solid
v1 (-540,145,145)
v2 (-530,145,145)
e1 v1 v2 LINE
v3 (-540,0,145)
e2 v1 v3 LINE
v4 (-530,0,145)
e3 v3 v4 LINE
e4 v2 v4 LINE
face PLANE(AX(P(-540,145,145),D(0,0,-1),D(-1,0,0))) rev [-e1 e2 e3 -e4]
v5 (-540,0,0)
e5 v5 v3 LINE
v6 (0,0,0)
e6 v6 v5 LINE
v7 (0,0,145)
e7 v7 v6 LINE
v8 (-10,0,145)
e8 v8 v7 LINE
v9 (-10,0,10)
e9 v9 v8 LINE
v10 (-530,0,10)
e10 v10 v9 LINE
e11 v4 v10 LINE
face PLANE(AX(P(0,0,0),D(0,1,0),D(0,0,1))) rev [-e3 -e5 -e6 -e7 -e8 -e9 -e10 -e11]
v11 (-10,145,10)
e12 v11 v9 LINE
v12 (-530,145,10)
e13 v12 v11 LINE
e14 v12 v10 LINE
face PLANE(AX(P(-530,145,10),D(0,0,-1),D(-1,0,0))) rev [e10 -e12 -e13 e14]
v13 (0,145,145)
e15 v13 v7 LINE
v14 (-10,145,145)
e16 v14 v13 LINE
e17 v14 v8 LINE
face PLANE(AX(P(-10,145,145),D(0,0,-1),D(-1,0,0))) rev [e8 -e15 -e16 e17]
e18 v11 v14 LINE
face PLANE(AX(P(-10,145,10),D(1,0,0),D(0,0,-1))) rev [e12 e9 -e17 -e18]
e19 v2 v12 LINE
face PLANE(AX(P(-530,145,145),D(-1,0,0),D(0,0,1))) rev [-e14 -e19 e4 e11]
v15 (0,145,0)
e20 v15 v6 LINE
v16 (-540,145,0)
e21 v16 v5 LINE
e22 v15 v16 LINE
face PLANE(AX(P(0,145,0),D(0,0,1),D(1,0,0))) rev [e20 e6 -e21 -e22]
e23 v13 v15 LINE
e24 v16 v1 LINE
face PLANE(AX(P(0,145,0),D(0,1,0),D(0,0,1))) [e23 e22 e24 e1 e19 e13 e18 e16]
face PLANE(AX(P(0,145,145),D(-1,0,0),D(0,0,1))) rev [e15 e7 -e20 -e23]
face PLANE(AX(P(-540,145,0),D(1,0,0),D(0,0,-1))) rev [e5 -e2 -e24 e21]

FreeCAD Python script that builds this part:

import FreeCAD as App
import Part
import Sketcher

doc = App.newDocument("Part")
body = doc.addObject("PartDesign::Body", "Body")

# Sketch on XZ plane
sketch1 = body.newObject("Sketcher::SketchObject", "Sketch")
sketch1.AttachmentSupport = (doc.getObject("XZ_Plane"), [""])
sketch1.MapMode = "FlatFace"
sketch1.addGeometry([
    Part.LineSegment(App.Vector(0, 0, 0), App.Vector(-540, 0, 0)),  # 0
    Part.LineSegment(App.Vector(-540, 0, 0), App.Vector(-540, 145, 0)),  # 1
    Part.LineSegment(App.Vector(-540, 145, 0), App.Vector(-530, 145, 0)),  # 2
    Part.LineSegment(App.Vector(-530, 145, 0), App.Vector(-530, 10, 0)),  # 3
    Part.LineSegment(App.Vector(-530, 10, 0), App.Vector(-10, 10, 0)),  # 4
    Part.LineSegment(App.Vector(-10, 10, 0), App.Vector(-10, 145, 0)),  # 5
    Part.LineSegment(App.Vector(-10, 145, 0), App.Vector(0, 145, 0)),  # 6
    Part.LineSegment(App.Vector(0, 145, 0), App.Vector(0, 0, 0)),  # 7
], False)
sketch1.addConstraint([
    Sketcher.Constraint("Coincident", 0, 2, 1, 1),
    Sketcher.Constraint("Coincident", 1, 2, 2, 1),
    Sketcher.Constraint("Coincident", 2, 2, 3, 1),
    Sketcher.Constraint("Coincident", 3, 2, 4, 1),
    Sketcher.Constraint("Coincident", 4, 2, 5, 1),
    Sketcher.Constraint("Coincident", 5, 2, 6, 1),
    Sketcher.Constraint("Coincident", 6, 2, 7, 1),
    Sketcher.Constraint("Coincident", 7, 2, 0, 1),
    Sketcher.Constraint("Horizontal", 0),
    Sketcher.Constraint("Vertical", 1),
    Sketcher.Constraint("Horizontal", 2),
    Sketcher.Constraint("Vertical", 3),
    Sketcher.Constraint("Horizontal", 4),
    Sketcher.Constraint("Vertical", 5),
    Sketcher.Constraint("Horizontal", 6),
    Sketcher.Constraint("Vertical", 7),
    Sketcher.Constraint("Coincident", 7, 2, -1, 1),
    Sketcher.Constraint("Horizontal", 2, 2, 5, 2),
    Sketcher.Constraint("Equal", 2, 6),
    Sketcher.Constraint("DistanceX", 0, 2, 0, 1, 540.0),
    Sketcher.Constraint("DistanceX", 2, 1, 2, 2, 10.0),
    Sketcher.Constraint("DistanceY", 1, 1, 1, 2, 145.0),
    Sketcher.Constraint("DistanceY", 3, 2, 3, 1, 135.0),
])
pad1 = body.newObject("PartDesign::Pad", "Pad")
pad1.Profile = sketch1
pad1.Length = 145
pad1.Reversed = True

doc.recompute()
